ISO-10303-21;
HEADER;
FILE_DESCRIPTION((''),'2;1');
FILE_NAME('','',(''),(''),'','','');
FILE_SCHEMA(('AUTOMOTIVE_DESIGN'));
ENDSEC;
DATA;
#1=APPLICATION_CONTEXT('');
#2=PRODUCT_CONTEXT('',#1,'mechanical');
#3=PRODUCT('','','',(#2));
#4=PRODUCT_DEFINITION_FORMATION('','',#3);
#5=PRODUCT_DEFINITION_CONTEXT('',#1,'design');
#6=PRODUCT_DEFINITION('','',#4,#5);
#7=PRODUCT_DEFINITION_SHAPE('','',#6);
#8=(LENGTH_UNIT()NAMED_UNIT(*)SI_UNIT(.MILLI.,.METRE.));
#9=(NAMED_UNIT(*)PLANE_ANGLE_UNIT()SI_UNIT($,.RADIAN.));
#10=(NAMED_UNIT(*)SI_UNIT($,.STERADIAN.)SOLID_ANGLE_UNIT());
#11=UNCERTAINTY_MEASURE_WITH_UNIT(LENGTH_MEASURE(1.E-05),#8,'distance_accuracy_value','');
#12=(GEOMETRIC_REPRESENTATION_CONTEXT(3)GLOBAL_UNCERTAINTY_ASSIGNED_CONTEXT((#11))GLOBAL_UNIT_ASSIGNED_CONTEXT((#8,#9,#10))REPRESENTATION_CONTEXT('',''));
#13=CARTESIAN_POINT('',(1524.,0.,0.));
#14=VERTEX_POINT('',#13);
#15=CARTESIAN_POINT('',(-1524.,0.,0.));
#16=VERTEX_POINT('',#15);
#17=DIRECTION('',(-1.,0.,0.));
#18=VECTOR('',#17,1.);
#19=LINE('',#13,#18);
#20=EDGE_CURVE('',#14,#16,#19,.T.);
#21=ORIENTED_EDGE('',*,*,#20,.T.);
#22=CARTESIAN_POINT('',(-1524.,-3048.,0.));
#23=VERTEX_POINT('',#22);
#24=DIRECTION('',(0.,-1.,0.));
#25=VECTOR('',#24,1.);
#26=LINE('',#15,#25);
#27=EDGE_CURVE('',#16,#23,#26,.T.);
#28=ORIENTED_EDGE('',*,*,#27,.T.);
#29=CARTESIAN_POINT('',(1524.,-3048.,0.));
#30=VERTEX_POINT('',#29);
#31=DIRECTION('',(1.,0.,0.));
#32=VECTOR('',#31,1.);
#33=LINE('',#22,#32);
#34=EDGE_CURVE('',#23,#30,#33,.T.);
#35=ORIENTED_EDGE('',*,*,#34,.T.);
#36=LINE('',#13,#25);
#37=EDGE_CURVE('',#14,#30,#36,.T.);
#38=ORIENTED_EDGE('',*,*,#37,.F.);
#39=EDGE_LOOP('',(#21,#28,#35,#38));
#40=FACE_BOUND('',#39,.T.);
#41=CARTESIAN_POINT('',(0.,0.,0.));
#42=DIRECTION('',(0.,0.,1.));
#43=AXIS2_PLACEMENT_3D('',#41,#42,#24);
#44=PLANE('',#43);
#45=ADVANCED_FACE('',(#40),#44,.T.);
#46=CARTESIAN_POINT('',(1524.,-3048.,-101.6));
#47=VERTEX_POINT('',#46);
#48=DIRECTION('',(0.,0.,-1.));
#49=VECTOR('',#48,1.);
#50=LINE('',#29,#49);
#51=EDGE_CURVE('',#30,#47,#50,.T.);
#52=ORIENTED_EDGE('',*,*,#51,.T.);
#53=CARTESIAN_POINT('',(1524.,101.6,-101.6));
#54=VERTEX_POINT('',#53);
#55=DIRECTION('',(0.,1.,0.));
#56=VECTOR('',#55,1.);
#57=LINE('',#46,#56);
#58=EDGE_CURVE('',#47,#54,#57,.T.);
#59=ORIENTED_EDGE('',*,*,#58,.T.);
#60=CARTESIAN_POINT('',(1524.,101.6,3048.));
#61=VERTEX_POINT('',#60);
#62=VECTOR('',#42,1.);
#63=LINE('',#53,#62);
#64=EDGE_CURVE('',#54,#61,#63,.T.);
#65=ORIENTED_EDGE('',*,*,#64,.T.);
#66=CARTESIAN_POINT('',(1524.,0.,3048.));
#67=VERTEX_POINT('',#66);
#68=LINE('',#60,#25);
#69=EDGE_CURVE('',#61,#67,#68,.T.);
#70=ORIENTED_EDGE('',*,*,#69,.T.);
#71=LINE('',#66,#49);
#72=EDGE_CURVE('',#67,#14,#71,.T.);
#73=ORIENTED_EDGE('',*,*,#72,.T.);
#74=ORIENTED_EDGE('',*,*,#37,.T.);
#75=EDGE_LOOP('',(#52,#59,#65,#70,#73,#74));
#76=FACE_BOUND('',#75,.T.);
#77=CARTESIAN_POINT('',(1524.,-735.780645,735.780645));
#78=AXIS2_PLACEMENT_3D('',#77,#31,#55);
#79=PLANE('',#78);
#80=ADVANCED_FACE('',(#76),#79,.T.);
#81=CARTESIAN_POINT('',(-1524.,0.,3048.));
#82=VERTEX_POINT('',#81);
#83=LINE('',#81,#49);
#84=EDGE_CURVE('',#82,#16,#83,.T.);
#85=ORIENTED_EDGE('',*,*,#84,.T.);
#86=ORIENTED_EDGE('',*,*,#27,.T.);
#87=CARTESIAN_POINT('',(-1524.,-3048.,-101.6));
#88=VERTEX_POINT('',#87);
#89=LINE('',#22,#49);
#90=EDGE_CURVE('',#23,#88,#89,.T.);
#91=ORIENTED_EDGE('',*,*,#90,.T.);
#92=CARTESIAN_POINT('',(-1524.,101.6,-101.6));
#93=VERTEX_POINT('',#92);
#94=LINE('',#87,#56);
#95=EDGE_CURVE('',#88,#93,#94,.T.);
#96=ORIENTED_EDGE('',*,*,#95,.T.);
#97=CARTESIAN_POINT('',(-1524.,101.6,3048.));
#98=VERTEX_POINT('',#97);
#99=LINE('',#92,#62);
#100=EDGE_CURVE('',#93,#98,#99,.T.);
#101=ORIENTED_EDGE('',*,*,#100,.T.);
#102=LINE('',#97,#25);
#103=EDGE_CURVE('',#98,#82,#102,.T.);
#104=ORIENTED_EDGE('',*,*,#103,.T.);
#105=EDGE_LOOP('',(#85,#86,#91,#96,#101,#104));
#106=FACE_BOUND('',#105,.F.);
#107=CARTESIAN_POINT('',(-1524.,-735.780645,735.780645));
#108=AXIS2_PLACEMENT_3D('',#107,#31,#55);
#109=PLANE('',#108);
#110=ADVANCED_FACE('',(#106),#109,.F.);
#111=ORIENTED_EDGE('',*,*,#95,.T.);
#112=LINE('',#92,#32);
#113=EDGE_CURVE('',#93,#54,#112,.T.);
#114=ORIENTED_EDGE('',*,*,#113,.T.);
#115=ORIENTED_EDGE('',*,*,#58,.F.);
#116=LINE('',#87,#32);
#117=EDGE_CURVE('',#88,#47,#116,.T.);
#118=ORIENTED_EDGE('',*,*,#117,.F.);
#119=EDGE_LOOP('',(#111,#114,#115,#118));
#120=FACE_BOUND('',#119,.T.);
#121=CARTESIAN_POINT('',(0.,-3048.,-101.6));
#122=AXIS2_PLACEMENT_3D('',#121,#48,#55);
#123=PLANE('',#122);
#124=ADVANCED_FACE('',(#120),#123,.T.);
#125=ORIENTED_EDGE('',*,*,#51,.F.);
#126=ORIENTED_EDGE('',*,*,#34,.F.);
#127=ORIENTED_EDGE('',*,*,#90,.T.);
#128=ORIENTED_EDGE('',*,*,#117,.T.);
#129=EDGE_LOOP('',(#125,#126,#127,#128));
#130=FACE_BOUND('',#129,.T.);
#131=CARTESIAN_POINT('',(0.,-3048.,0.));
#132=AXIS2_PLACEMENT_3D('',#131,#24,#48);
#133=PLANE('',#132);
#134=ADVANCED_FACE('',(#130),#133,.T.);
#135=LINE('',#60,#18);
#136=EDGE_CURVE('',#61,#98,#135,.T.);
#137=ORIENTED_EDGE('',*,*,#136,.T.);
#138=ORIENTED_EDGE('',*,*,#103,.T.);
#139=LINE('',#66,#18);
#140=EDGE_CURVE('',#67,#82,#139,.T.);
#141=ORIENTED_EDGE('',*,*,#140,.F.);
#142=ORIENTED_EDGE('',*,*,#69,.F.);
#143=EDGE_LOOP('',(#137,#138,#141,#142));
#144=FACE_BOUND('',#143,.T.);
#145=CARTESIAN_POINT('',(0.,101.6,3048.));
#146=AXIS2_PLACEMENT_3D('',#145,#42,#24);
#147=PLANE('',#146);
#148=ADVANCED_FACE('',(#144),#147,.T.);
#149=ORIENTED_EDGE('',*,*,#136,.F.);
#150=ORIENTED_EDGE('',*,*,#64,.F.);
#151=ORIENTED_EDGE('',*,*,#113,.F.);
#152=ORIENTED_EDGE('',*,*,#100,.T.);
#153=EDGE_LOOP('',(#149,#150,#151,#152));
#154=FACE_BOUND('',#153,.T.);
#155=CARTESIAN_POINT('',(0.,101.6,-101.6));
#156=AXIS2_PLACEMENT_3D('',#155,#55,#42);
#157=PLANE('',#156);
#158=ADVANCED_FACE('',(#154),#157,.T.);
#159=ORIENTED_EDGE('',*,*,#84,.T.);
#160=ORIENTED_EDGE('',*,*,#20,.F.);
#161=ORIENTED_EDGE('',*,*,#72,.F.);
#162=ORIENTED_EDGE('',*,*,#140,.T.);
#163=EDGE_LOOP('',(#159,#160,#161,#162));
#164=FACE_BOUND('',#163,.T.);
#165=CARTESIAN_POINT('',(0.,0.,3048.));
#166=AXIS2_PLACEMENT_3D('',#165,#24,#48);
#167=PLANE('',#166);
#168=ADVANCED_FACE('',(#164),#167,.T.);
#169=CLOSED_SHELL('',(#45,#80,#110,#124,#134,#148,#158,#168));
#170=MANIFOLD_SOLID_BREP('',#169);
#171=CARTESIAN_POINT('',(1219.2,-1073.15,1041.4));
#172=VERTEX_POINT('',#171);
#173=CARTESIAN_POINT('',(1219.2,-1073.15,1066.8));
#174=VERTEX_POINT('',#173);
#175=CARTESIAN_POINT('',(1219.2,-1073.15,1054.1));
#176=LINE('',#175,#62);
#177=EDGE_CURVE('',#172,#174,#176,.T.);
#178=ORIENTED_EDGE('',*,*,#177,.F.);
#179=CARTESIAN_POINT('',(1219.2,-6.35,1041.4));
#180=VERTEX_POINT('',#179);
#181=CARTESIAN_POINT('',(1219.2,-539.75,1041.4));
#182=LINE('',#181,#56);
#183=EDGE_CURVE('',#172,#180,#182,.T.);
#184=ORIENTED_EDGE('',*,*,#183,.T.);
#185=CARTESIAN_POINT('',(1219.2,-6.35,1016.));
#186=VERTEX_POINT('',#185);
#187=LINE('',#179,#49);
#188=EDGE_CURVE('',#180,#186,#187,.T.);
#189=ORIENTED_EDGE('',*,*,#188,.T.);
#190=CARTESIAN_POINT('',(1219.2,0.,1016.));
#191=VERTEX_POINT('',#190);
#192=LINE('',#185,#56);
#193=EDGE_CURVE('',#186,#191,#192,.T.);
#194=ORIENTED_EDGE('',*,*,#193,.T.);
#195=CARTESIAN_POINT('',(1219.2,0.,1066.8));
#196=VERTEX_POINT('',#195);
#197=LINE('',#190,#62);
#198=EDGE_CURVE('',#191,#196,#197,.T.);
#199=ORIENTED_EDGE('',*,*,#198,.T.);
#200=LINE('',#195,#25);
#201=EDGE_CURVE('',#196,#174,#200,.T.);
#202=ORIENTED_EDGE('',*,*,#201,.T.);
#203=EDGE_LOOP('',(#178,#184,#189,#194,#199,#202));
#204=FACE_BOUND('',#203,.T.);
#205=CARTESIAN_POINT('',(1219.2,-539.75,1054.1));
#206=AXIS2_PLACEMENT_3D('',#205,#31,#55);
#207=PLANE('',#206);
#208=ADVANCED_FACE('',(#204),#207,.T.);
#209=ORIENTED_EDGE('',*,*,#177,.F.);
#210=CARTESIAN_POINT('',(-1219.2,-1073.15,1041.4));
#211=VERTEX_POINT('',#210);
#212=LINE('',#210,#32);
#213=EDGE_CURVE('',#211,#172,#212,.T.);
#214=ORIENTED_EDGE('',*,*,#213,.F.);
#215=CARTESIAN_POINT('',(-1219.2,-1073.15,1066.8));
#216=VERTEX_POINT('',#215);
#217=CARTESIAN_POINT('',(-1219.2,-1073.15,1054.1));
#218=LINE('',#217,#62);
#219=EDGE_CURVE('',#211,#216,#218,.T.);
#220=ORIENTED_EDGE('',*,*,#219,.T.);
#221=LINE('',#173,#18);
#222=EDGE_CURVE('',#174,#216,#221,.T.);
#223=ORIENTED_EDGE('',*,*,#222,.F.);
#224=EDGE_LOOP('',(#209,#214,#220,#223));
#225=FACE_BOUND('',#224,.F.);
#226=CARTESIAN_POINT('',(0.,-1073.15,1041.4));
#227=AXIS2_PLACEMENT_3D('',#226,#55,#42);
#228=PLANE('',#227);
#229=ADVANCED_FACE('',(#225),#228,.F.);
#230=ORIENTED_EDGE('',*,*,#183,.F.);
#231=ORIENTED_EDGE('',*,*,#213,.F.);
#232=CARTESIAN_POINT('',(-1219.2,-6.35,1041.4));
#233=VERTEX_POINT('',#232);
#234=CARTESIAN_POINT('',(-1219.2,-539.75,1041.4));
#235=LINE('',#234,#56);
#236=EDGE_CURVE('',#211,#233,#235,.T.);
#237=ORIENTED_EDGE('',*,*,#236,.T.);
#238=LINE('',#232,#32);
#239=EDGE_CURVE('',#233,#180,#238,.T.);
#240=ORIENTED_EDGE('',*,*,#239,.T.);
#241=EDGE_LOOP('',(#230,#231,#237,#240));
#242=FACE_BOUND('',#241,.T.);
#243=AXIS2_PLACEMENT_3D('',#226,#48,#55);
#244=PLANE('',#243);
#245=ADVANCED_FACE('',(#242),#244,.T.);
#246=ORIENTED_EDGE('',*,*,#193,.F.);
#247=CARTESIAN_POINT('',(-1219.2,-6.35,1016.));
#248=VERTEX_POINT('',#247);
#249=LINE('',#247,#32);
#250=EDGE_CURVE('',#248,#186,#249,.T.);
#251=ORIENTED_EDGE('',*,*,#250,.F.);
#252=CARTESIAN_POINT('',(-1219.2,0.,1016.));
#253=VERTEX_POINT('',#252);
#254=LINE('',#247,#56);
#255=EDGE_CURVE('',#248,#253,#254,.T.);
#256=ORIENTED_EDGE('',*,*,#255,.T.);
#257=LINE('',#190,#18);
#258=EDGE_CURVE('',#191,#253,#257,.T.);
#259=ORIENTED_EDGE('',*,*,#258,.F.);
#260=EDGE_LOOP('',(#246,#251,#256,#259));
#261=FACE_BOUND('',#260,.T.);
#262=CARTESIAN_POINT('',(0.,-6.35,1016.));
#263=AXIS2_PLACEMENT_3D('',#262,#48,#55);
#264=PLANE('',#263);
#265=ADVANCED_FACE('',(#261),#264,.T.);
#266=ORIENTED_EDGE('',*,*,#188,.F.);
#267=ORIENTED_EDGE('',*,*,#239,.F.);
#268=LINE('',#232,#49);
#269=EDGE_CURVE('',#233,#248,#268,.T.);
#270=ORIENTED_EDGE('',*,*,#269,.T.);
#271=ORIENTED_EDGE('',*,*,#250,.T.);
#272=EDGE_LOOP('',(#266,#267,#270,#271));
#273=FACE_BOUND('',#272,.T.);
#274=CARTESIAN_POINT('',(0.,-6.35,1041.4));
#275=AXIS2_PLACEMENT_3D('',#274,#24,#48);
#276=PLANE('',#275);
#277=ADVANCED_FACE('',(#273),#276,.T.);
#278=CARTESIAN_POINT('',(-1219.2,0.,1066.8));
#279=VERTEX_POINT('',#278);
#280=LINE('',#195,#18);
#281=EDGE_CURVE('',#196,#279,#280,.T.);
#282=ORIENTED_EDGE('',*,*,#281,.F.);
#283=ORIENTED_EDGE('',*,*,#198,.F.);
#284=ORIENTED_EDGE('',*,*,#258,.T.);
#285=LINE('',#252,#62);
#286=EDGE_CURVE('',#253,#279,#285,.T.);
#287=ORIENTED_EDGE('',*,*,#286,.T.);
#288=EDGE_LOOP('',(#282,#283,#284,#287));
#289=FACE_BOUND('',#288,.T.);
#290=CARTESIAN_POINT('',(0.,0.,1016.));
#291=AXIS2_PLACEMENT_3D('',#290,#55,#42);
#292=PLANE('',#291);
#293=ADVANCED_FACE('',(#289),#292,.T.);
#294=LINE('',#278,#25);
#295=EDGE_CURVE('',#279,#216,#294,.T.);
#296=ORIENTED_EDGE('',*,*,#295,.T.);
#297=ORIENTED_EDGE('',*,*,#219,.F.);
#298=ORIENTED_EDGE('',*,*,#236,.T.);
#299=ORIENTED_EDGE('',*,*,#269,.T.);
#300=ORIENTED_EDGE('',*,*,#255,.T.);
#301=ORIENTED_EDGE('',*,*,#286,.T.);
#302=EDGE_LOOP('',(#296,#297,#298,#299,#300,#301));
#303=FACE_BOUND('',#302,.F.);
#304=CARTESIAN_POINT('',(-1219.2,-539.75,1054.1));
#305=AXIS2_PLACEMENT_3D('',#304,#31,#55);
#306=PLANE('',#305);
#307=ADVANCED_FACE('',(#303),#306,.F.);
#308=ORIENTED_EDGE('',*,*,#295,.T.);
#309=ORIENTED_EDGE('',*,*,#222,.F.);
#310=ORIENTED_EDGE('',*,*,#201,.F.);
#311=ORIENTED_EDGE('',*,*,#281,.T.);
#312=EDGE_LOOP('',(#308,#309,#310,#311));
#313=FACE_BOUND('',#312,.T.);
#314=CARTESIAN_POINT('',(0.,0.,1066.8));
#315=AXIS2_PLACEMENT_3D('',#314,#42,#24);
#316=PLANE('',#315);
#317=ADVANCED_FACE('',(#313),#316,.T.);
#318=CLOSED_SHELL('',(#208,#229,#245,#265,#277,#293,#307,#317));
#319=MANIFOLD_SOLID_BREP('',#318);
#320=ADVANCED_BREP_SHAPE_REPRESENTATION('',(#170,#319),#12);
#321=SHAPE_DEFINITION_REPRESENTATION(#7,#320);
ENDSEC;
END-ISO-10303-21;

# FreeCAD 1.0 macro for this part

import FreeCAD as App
import Part
import Sketcher
Q = App.Units.Quantity

doc = App.newDocument("Part")
body = doc.addObject("PartDesign::Body", "Body")

sketch1 = doc.addObject("Sketcher::SketchObject", "Sketch")
body.addObject(sketch1)
sketch1.AttachmentSupport = (doc.YZ_Plane, [""])
sketch1.MapMode = "FlatFace"
sketch1.addGeometry(Part.LineSegment(App.Vector(0, 0, 0), App.Vector(-3048, 0, 0)), False)
sketch1.addGeometry(Part.LineSegment(App.Vector(-3048, 0, 0), App.Vector(-3048, -102, 0)), False)
sketch1.addGeometry(Part.LineSegment(App.Vector(-3048, -102, 0), App.Vector(102, -102, 0)), False)
sketch1.addGeometry(Part.LineSegment(App.Vector(102, -102, 0), App.Vector(102, 3048, 0)), False)
sketch1.addGeometry(Part.LineSegment(App.Vector(102, 3048, 0), App.Vector(0, 3048, 0)), False)
sketch1.addGeometry(Part.LineSegment(App.Vector(0, 3048, 0), App.Vector(0, 0, 0)), False)
sketch1.addConstraint(Sketcher.Constraint("Coincident", 0, 2, 1, 1))
sketch1.addConstraint(Sketcher.Constraint("Coincident", 1, 2, 2, 1))
sketch1.addConstraint(Sketcher.Constraint("Coincident", 2, 2, 3, 1))
sketch1.addConstraint(Sketcher.Constraint("Coincident", 3, 2, 4, 1))
sketch1.addConstraint(Sketcher.Constraint("Coincident", 4, 2, 5, 1))
sketch1.addConstraint(Sketcher.Constraint("Coincident", 5, 2, 0, 1))
sketch1.addConstraint(Sketcher.Constraint("Horizontal", 0))
sketch1.addConstraint(Sketcher.Constraint("Vertical", 1))
sketch1.addConstraint(Sketcher.Constraint("Horizontal", 2))
sketch1.addConstraint(Sketcher.Constraint("Vertical", 3))
sketch1.addConstraint(Sketcher.Constraint("Horizontal", 4))
sketch1.addConstraint(Sketcher.Constraint("Vertical", 5))
sketch1.addConstraint(Sketcher.Constraint("Coincident", 5, 2, -1, 1))
sketch1.addConstraint(Sketcher.Constraint("Equal", 4, 1))
sketch1.addConstraint(Sketcher.Constraint("Equal", 2, 3))
sketch1.addConstraint(Sketcher.Constraint("DistanceX", 0, 2, 0, 1, Q("120 in")))
sketch1.addConstraint(Sketcher.Constraint("DistanceX", 2, 1, 2, 2, Q("124 in")))
pad1 = doc.addObject("PartDesign::Pad", "Pad")
body.addObject(pad1)
pad1.Profile = sketch1
pad1.Length = Q("120 in")
pad1.Midplane = True
body2 = doc.addObject("PartDesign::Body", "Body001")

sketch2 = doc.addObject("Sketcher::SketchObject", "Sketch001")
body2.addObject(sketch2)
sketch2.AttachmentSupport = (doc.getObject("YZ_Plane001"), [""])
sketch2.MapMode = "FlatFace"
sketch2.addGeometry(Part.LineSegment(App.Vector(-1073, 1067, 0), App.Vector(-1073, 1041, 0)), False)
sketch2.addGeometry(Part.LineSegment(App.Vector(-1073, 1041, 0), App.Vector(-6, 1041, 0)), False)
sketch2.addGeometry(Part.LineSegment(App.Vector(-6, 1041, 0), App.Vector(-6, 1016, 0)), False)
sketch2.addGeometry(Part.LineSegment(App.Vector(-6, 1016, 0), App.Vector(0, 1016, 0)), False)
sketch2.addGeometry(Part.LineSegment(App.Vector(0, 1016, 0), App.Vector(0, 1067, 0)), False)
sketch2.addGeometry(Part.LineSegment(App.Vector(0, 1067, 0), App.Vector(-1073, 1067, 0)), False)
sketch2.addConstraint(Sketcher.Constraint("Coincident", 0, 2, 1, 1))
sketch2.addConstraint(Sketcher.Constraint("Coincident", 1, 2, 2, 1))
sketch2.addConstraint(Sketcher.Constraint("Coincident", 2, 2, 3, 1))
sketch2.addConstraint(Sketcher.Constraint("Coincident", 3, 2, 4, 1))
sketch2.addConstraint(Sketcher.Constraint("Coincident", 4, 2, 5, 1))
sketch2.addConstraint(Sketcher.Constraint("Coincident", 5, 2, 0, 1))
sketch2.addConstraint(Sketcher.Constraint("Vertical", 0))
sketch2.addConstraint(Sketcher.Constraint("Horizontal", 1))
sketch2.addConstraint(Sketcher.Constraint("Vertical", 2))
sketch2.addConstraint(Sketcher.Constraint("Horizontal", 3))
sketch2.addConstraint(Sketcher.Constraint("Vertical", 4))
sketch2.addConstraint(Sketcher.Constraint("Horizontal", 5))
sketch2.addConstraint(Sketcher.Constraint("PointOnObject", 3, 2, -2))
sketch2.addConstraint(Sketcher.Constraint("Equal", 0, 2))
sketch2.addConstraint(Sketcher.Constraint("DistanceX", 1, 1, 1, 2, Q("42 in")))
sketch2.addConstraint(Sketcher.Constraint("DistanceY", 0, 2, 0, 1, Q("1 in")))
sketch2.addConstraint(Sketcher.Constraint("DistanceY", -1, 1, 0, 2, Q("41 in")))
sketch2.addConstraint(Sketcher.Constraint("DistanceX", 3, 1, 3, 2, Q("0.25 in")))
pad2 = doc.addObject("PartDesign::Pad", "Pad001")
body2.addObject(pad2)
pad2.Profile = sketch2
pad2.Length = Q("96 in")
pad2.Midplane = True

doc.recompute()
